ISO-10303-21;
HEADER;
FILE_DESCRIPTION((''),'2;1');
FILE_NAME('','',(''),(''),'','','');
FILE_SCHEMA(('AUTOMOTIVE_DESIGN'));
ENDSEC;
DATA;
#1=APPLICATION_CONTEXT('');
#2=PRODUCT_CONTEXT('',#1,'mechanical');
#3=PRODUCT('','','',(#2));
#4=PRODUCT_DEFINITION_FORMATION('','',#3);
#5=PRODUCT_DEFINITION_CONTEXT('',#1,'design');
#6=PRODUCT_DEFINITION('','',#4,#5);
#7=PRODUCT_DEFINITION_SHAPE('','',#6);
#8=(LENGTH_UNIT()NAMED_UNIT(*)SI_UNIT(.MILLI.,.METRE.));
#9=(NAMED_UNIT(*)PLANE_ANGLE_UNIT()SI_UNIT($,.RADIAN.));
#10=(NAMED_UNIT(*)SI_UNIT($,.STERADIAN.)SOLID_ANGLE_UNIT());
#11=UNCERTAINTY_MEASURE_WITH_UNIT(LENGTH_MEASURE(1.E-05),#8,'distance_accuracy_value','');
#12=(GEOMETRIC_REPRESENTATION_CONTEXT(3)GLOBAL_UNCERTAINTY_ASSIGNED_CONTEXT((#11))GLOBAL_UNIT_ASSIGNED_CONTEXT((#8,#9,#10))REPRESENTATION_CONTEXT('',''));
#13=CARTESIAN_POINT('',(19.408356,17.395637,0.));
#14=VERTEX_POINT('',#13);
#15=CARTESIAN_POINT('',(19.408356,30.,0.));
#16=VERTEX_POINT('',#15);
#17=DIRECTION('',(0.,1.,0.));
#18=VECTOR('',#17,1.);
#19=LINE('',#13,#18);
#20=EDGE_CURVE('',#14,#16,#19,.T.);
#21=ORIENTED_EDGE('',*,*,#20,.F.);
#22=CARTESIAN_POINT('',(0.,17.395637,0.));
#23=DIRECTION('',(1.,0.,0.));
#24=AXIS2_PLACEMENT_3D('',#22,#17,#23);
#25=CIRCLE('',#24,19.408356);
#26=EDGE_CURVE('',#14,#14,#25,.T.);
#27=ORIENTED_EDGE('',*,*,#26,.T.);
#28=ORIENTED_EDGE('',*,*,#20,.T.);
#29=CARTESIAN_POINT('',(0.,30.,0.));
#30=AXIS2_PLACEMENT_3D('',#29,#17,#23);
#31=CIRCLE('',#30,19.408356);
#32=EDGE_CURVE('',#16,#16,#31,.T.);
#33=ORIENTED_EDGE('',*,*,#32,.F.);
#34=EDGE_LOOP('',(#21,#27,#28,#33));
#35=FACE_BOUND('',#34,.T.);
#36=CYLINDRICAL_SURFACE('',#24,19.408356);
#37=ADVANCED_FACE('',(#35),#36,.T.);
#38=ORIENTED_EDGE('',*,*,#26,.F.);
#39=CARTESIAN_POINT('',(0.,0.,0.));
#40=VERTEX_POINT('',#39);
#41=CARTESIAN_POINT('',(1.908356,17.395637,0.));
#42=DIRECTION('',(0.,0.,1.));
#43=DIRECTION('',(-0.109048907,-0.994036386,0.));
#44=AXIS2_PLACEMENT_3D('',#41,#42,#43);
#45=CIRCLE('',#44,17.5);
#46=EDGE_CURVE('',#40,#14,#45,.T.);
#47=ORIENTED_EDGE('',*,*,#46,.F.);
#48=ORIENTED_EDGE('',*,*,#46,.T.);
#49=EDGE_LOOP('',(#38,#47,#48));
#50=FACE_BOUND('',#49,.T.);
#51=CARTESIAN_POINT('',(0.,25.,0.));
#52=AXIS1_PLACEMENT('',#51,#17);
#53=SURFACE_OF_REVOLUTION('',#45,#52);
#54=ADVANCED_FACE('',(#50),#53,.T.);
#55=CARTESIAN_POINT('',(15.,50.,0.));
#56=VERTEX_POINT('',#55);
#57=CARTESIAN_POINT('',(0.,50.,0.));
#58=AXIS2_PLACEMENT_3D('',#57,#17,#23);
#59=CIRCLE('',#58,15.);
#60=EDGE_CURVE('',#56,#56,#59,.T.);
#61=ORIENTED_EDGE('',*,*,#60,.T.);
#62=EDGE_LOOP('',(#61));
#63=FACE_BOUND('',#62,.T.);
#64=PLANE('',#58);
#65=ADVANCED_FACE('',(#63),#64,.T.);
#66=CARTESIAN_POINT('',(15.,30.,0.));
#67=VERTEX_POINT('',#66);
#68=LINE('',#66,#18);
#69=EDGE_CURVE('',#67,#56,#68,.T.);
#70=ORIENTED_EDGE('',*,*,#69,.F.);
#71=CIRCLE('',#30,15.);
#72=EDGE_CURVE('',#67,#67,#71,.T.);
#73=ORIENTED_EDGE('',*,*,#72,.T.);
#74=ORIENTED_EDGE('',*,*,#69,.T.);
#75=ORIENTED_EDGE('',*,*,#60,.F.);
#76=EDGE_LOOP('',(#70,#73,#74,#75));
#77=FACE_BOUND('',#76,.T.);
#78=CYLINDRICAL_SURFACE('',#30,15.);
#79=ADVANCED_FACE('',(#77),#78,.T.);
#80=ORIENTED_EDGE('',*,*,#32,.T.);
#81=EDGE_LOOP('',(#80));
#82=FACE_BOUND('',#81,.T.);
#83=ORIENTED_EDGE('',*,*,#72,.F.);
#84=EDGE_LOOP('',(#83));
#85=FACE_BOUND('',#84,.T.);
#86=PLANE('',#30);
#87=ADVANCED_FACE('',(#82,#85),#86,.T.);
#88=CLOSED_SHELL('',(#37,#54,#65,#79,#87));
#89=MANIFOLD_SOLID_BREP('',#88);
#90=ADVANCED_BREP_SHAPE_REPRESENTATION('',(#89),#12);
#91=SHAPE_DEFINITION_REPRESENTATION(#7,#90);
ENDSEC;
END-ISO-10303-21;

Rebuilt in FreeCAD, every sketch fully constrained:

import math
import FreeCAD as App
import Part
import Sketcher

doc = App.newDocument("Part")
body = doc.addObject("PartDesign::Body", "Body")

# Sketch on XY plane
sketch1 = doc.addObject("Sketcher::SketchObject", "Sketch")
body.addObject(sketch1)
sketch1.AttachmentSupport = (doc.XY_Plane, [""])
sketch1.MapMode = "FlatFace"
sketch1.addGeometry([
    Part.LineSegment(App.Vector(0, 50, 0), App.Vector(0, 0, 0)),  # 0
    Part.ArcOfCircle(Part.Circle(App.Vector(1.9, 17.4, 0), App.Vector(0, 0, 1), 17.5), math.radians(-96), math.radians(0)),  # 1
    Part.LineSegment(App.Vector(19.4, 17.4, 0), App.Vector(19.4, 30, 0)),  # 2
    Part.LineSegment(App.Vector(19.4, 30, 0), App.Vector(15, 30, 0)),  # 3
    Part.LineSegment(App.Vector(15, 30, 0), App.Vector(15, 50, 0)),  # 4
    Part.LineSegment(App.Vector(15, 50, 0), App.Vector(0, 50, 0)),  # 5
], False)
sketch1.addConstraint([
    Sketcher.Constraint("Coincident", 0, 2, 1, 1),
    Sketcher.Constraint("Tangent", 1, 2, 2, 1),
    Sketcher.Constraint("Coincident", 2, 2, 3, 1),
    Sketcher.Constraint("Coincident", 3, 2, 4, 1),
    Sketcher.Constraint("Coincident", 4, 2, 5, 1),
    Sketcher.Constraint("Coincident", 5, 2, 0, 1),
    Sketcher.Constraint("Vertical", 0),
    Sketcher.Constraint("Vertical", 2),
    Sketcher.Constraint("Horizontal", 3),
    Sketcher.Constraint("Vertical", 4),
    Sketcher.Constraint("Horizontal", 5),
    Sketcher.Constraint("Coincident", 0, 2, -1, 1),
    Sketcher.Constraint("Radius", 1, 17.5),
    Sketcher.Constraint("DistanceX", 5, 2, 5, 1, 15.0),
    Sketcher.Constraint("DistanceY", 0, 2, 0, 1, 50.0),
    Sketcher.Constraint("DistanceY", 4, 1, 4, 2, 20.0),
    Sketcher.Constraint("DistanceX", 3, 2, 3, 1, 4.408356),
])
revolution = doc.addObject("PartDesign::Revolution", "Revolution")
body.addObject(revolution)
revolution.Profile = sketch1
revolution.ReferenceAxis = (sketch1, ["V_Axis"])
revolution.Angle = 360

doc.recompute()
